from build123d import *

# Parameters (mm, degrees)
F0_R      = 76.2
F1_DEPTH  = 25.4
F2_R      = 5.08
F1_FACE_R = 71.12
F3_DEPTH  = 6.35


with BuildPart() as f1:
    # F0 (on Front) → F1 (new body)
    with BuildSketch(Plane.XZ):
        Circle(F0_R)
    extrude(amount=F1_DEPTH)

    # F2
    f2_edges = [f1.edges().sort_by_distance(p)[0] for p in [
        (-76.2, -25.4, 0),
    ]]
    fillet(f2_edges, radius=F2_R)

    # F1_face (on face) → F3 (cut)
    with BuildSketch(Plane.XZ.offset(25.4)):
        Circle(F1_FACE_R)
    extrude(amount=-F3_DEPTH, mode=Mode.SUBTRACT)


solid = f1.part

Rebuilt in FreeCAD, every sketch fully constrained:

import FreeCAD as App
import Part
import Sketcher
Q = App.Units.Quantity


def edges_at(feature, points):
    """Names of the edges that pass closest to the given points."""
    edges = feature.Shape.Edges
    near = lambda p: min(range(len(edges)), key=lambda i: edges[i].distToShape(Part.Vertex(*p))[0])
    return sorted({f"Edge{near(p) + 1}" for p in points})

doc = App.newDocument("Part")
body = doc.addObject("PartDesign::Body", "Body")

# Sketch on XZ plane
sketch1 = doc.addObject("Sketcher::SketchObject", "Sketch")
body.addObject(sketch1)
sketch1.AttachmentSupport = (doc.XZ_Plane, [""])
sketch1.MapMode = "FlatFace"
sketch1.addGeometry(Part.Circle(App.Vector(0, 0, 0), App.Vector(0, 0, 1), 76.2), False)
sketch1.addConstraint([
    Sketcher.Constraint("Coincident", 0, 3, -1, 1),
    Sketcher.Constraint("Diameter", 0, Q("6 in")),
])
pad1 = doc.addObject("PartDesign::Pad", "Pad")
body.addObject(pad1)
pad1.Profile = sketch1
pad1.Length = Q("1 in")
doc.recompute()

fillet = doc.addObject("PartDesign::Fillet", "Fillet")
body.addObject(fillet)
fillet.Base = (pad1, edges_at(pad1, [(-76.2, -25.4, 0)]))
fillet.Radius = Q("0.2 in")

# Sketch on XZ plane
sketch2 = doc.addObject("Sketcher::SketchObject", "Sketch001")
body.addObject(sketch2)
sketch2.AttachmentSupport = (doc.XZ_Plane, [""])
sketch2.MapMode = "FlatFace"
sketch2.AttachmentOffset = App.Placement(App.Vector(0, 0, 1 * 25.4), App.Rotation())
sketch2.addGeometry(Part.Circle(App.Vector(0, 0, 0), App.Vector(0, 0, 1), 71.12), False)
sketch2.addConstraint([
    Sketcher.Constraint("Coincident", 0, 3, -1, 1),
    Sketcher.Constraint("Diameter", 0, Q("5.6 in")),
])
pocket1 = doc.addObject("PartDesign::Pocket", "Pocket")
body.addObject(pocket1)
pocket1.Profile = sketch2
pocket1.Length = Q("0.25 in")

doc.recompute()
